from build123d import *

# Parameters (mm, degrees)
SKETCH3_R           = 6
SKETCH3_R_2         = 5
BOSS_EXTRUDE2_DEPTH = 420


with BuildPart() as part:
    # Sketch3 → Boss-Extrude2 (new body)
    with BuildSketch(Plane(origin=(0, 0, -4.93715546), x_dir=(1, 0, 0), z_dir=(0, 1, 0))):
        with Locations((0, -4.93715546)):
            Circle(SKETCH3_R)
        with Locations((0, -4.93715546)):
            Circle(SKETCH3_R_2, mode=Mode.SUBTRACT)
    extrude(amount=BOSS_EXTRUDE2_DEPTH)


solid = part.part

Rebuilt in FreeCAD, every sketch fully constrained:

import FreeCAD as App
import Part
import Sketcher

doc = App.newDocument("Part")
params = doc.addObject("Spreadsheet::Sheet", "Params")
for row, (alias, value) in enumerate([
    ("sketch1_diameter", "12 mm"),
    ("sketch1_diameter2", "10 mm"),
    ("pad1_length", "420 mm"),
], start=1):
    params.set(f"A{row}", alias)
    params.set(f"B{row}", "=" + value)
    params.setAlias(f"B{row}", alias)

body = doc.addObject("PartDesign::Body", "Body")

# Sketch on XZ plane
sketch1 = body.newObject("Sketcher::SketchObject", "Sketch")
sketch1.AttachmentSupport = (doc.getObject("XZ_Plane"), [""])
sketch1.MapMode = "FlatFace"
sketch1.addGeometry([
    Part.Circle(App.Vector(0, 0, 0), App.Vector(0, 0, 1), 6),
    Part.Circle(App.Vector(0, 0, 0), App.Vector(0, 0, 1), 5),
], False)
sketch1.addConstraint([
    Sketcher.Constraint("Coincident", 0, 3, -1, 1),
    Sketcher.Constraint("Coincident", 1, 3, -1, 1),
    Sketcher.Constraint("Diameter", 0, 12.0),
    Sketcher.Constraint("Diameter", 1, 10.0),
])
sketch1.setExpression("Constraints[2]", "Params.sketch1_diameter")
sketch1.setExpression("Constraints[3]", "Params.sketch1_diameter2")
pad1 = body.newObject("PartDesign::Pad", "Pad")
pad1.Profile = sketch1
pad1.setExpression("Length", "Params.pad1_length")
pad1.Reversed = True

doc.recompute()
